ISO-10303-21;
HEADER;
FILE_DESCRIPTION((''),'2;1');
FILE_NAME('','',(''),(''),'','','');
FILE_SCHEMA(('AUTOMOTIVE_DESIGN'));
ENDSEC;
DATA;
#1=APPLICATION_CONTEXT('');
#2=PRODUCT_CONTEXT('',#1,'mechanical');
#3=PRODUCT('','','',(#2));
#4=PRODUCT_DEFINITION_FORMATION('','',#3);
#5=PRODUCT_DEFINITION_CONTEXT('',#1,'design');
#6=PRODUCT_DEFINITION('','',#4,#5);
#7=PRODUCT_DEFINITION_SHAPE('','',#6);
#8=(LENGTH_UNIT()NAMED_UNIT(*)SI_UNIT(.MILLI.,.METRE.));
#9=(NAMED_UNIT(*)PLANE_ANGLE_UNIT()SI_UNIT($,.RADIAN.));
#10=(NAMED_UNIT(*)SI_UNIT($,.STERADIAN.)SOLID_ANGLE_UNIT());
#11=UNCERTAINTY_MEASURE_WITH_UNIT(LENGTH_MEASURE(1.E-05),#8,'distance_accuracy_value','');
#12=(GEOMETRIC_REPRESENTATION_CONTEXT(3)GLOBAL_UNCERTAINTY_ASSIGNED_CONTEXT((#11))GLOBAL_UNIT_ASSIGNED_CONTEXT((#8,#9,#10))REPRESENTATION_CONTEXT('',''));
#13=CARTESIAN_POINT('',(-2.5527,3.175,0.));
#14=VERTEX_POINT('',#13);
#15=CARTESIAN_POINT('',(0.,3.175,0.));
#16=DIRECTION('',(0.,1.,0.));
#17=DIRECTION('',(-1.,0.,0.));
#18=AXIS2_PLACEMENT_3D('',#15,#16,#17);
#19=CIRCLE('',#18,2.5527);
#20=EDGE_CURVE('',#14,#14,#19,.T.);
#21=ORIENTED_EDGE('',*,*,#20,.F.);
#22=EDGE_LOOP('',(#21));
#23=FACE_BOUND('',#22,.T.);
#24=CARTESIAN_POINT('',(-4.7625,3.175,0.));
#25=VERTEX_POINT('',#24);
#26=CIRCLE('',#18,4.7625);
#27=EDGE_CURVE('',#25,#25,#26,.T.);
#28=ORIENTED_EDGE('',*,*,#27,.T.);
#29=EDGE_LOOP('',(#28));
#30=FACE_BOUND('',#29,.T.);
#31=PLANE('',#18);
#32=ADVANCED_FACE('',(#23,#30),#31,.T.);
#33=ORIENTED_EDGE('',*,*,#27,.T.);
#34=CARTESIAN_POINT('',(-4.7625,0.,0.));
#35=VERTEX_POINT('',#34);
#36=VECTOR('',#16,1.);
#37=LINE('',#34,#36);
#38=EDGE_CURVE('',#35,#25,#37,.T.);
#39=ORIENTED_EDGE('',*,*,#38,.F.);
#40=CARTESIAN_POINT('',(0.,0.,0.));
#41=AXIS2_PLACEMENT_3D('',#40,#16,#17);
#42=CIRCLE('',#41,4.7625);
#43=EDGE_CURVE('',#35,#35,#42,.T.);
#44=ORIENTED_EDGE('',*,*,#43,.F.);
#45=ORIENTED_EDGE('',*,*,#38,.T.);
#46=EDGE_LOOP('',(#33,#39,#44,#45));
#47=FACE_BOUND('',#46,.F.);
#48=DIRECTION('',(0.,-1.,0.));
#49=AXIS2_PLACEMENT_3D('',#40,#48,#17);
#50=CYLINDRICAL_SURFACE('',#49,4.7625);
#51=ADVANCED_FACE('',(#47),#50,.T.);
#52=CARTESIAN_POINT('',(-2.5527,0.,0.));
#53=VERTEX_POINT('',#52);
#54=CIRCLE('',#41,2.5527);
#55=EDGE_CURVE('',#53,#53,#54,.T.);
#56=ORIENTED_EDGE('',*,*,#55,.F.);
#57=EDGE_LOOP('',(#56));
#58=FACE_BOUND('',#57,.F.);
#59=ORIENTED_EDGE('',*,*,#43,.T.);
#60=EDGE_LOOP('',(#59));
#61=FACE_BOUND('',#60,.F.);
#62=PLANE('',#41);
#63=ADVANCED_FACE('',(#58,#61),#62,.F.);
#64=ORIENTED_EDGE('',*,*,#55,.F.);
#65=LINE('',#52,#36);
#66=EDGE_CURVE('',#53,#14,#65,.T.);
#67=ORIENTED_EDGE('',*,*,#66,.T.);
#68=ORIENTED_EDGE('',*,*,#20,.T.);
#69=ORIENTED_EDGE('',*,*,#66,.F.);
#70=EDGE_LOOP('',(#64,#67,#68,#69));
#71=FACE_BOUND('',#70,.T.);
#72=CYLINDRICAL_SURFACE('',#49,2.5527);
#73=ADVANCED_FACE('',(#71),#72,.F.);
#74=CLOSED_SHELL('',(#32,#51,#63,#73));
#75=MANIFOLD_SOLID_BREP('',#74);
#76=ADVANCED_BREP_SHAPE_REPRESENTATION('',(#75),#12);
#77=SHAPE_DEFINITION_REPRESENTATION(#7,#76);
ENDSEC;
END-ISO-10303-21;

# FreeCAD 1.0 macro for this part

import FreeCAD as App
import Part
import Sketcher
from FreeCAD import Vector
Q = App.Units.Quantity

doc = App.newDocument("Part")
body = doc.addObject("PartDesign::Body", "Body")

# Sketch on XZ plane
sketch1 = body.newObject("Sketcher::SketchObject", "Sketch")
sketch1.AttachmentSupport = (doc.getObject("XZ_Plane"), [""])
sketch1.MapMode = "FlatFace"
sketch1.addGeometry(Part.Circle(Vector(0, 0, 0), Vector(0, 0, 1), 4.8), False)
sketch1.addGeometry(Part.Circle(Vector(0, 0, 0), Vector(0, 0, 1), 2.6), False)
sketch1.addConstraint(Sketcher.Constraint("Coincident", 0, 3, -1, 1))
sketch1.addConstraint(Sketcher.Constraint("Coincident", 1, 3, -1, 1))
sketch1.addConstraint(Sketcher.Constraint("Diameter", 0, Q("0.375 in")))
sketch1.addConstraint(Sketcher.Constraint("Diameter", 1, Q("0.201 in")))
pad1 = body.newObject("PartDesign::Pad", "Pad")
pad1.Profile = sketch1
pad1.Length = Q("0.125 in")
pad1.Reversed = True

doc.recompute()
